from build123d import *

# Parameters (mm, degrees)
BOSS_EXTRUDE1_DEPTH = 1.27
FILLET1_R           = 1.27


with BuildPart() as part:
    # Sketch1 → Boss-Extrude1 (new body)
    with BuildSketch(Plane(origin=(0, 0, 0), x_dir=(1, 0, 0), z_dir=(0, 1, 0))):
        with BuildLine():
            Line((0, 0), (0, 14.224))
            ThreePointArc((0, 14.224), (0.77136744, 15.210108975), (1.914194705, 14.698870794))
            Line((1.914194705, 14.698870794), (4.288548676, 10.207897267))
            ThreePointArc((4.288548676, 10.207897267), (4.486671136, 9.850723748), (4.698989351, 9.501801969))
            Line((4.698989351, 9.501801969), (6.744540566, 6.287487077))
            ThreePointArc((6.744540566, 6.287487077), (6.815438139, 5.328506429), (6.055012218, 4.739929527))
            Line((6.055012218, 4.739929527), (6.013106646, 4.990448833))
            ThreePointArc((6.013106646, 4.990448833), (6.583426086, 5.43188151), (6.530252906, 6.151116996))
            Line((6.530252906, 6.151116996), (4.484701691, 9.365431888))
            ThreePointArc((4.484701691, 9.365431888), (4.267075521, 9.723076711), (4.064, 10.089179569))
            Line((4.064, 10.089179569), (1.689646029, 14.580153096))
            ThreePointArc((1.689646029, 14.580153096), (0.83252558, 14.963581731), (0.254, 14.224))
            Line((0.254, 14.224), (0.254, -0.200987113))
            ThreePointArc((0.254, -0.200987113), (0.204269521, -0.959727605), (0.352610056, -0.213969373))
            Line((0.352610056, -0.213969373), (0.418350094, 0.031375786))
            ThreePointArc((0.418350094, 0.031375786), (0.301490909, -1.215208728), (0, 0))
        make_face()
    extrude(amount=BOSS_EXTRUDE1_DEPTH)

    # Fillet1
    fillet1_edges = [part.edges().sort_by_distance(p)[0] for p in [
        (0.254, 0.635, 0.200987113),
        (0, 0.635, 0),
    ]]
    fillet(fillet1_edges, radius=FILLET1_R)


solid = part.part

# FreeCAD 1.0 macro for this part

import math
import FreeCAD as App
import Part
import Sketcher
from FreeCAD import Vector
Q = App.Units.Quantity


def edges_at(feature, points):
    """Names of the edges that pass closest to the given points."""
    edges = feature.Shape.Edges
    near = lambda p: min(range(len(edges)), key=lambda i: edges[i].distToShape(Part.Vertex(*p))[0])
    return sorted({f"Edge{near(p) + 1}" for p in points})

doc = App.newDocument("Part")
body = doc.addObject("PartDesign::Body", "Body")

sketch1 = body.newObject("Sketcher::SketchObject", "Sketch")
sketch1.AttachmentSupport = (doc.getObject("XZ_Plane"), [""])
sketch1.MapMode = "FlatFace"
sketch1.addGeometry(Part.LineSegment(Vector(0, -14.22, 0), Vector(0, 0, 0)), False)
sketch1.addGeometry(Part.ArcOfCircle(Part.Circle(Vector(0.25, 0.58, 0), Vector(0, 0, 1), 0.64), math.radians(-75), math.radians(246)), False)
sketch1.addGeometry(Part.LineSegment(Vector(0.42, -0.03, 0), Vector(0.35, 0.21, 0)), False)
sketch1.addGeometry(Part.ArcOfCircle(Part.Circle(Vector(0.25, 0.58, 0), Vector(0, 0, 1), 0.38), math.radians(-75), math.radians(270)), False)
sketch1.addGeometry(Part.LineSegment(Vector(0.25, 0.2, 0), Vector(0.25, -14.22, 0)), False)
sketch1.addGeometry(Part.ArcOfCircle(Part.Circle(Vector(1.02, -14.22, 0), Vector(0, 0, 1), 0.76), math.radians(180), math.radians(332)), False)
sketch1.addGeometry(Part.LineSegment(Vector(1.69, -14.58, 0), Vector(4.06, -10.09, 0)), False)
sketch1.addGeometry(Part.ArcOfCircle(Part.Circle(Vector(13.27, -14.96, 0), Vector(0, 0, 1), 10.41), math.radians(147.53), math.radians(152.13)), False)
sketch1.addGeometry(Part.LineSegment(Vector(4.48, -9.37, 0), Vector(6.53, -6.15, 0)), False)
sketch1.addGeometry(Part.ArcOfCircle(Part.Circle(Vector(5.89, -5.74, 0), Vector(0, 0, 1), 0.76), math.radians(-32), math.radians(81)), False)
sketch1.addGeometry(Part.LineSegment(Vector(6.01, -4.99, 0), Vector(6.06, -4.74, 0)), False)
sketch1.addGeometry(Part.ArcOfCircle(Part.Circle(Vector(5.89, -5.74, 0), Vector(0, 0, 1), 1.02), math.radians(-32), math.radians(81)), False)
sketch1.addGeometry(Part.LineSegment(Vector(6.74, -6.29, 0), Vector(4.7, -9.5, 0)), False)
sketch1.addGeometry(Part.ArcOfCircle(Part.Circle(Vector(13.27, -14.96, 0), Vector(0, 0, 1), 10.16), math.radians(147.53), math.radians(152.13)), False)
sketch1.addGeometry(Part.LineSegment(Vector(4.29, -10.21, 0), Vector(1.91, -14.7, 0)), False)
sketch1.addGeometry(Part.ArcOfCircle(Part.Circle(Vector(1.02, -14.22, 0), Vector(0, 0, 1), 1.02), math.radians(180), math.radians(332)), False)
sketch1.addConstraint(Sketcher.Constraint("Coincident", 0, 2, 1, 2))
sketch1.addConstraint(Sketcher.Constraint("Coincident", 1, 1, 2, 1))
sketch1.addConstraint(Sketcher.Constraint("Coincident", 2, 2, 3, 1))
sketch1.addConstraint(Sketcher.Constraint("Coincident", 3, 2, 4, 1))
sketch1.addConstraint(Sketcher.Constraint("Tangent", 4, 2, 5, 1))
sketch1.addConstraint(Sketcher.Constraint("Tangent", 5, 2, 6, 1))
sketch1.addConstraint(Sketcher.Constraint("Tangent", 6, 2, 7, 2))
sketch1.addConstraint(Sketcher.Constraint("Tangent", 7, 1, 8, 1))
sketch1.addConstraint(Sketcher.Constraint("Tangent", 8, 2, 9, 1))
sketch1.addConstraint(Sketcher.Constraint("Coincident", 9, 2, 10, 1))
sketch1.addConstraint(Sketcher.Constraint("Coincident", 10, 2, 11, 2))
sketch1.addConstraint(Sketcher.Constraint("Tangent", 11, 1, 12, 1))
sketch1.addConstraint(Sketcher.Constraint("Tangent", 12, 2, 13, 1))
sketch1.addConstraint(Sketcher.Constraint("Tangent", 13, 2, 14, 1))
sketch1.addConstraint(Sketcher.Constraint("Tangent", 14, 2, 15, 2))
sketch1.addConstraint(Sketcher.Constraint("Tangent", 15, 1, 0, 1))
sketch1.addConstraint(Sketcher.Constraint("Vertical", 0))
sketch1.addConstraint(Sketcher.Constraint("Vertical", 4))
sketch1.addConstraint(Sketcher.Constraint("Coincident", 0, 2, -1, 1))
sketch1.addConstraint(Sketcher.Constraint("Coincident", 3, 3, 1, 3))
sketch1.addConstraint(Sketcher.Constraint("Coincident", 11, 3, 9, 3))
sketch1.addConstraint(Sketcher.Constraint("Coincident", 13, 3, 7, 3))
sketch1.addConstraint(Sketcher.Constraint("Coincident", 15, 3, 5, 3))
sketch1.addConstraint(Sketcher.Constraint("Equal", 5, 9))
sketch1.addConstraint(Sketcher.Constraint("Equal", 11, 15))
sketch1.addConstraint(Sketcher.Constraint("Parallel", 8, 12))
sketch1.addConstraint(Sketcher.Constraint("Vertical", 1, 3, 3, 2))
sketch1.addConstraint(Sketcher.Constraint("Equal", 2, 10))
sketch1.addConstraint(Sketcher.Constraint("Radius", 13, Q("0.4 in")))
sketch1.addConstraint(Sketcher.Constraint("Radius", 5, Q("0.03 in")))
sketch1.addConstraint(Sketcher.Constraint("Radius", 7, Q("0.41 in")))
sketch1.addConstraint(Sketcher.Constraint("Angle", 2, Q("105 deg")))
sketch1.addConstraint(Sketcher.Constraint("Radius", 1, Q("0.025 in")))
sketch1.addConstraint(Sketcher.Constraint("Distance", 6, Q("0.2 in")))
sketch1.addConstraint(Sketcher.Constraint("DistanceY", 0, 1, 0, 2, Q("0.56 in")))
sketch1.addConstraint(Sketcher.Constraint("Distance", 8, Q("0.15 in")))
sketch1.addConstraint(Sketcher.Constraint("DistanceX", -1, 1, 6, 2, Q("0.16 in")))
sketch1.addConstraint(Sketcher.Constraint("DistanceX", -1, 1, 7, 1, Q("4.484702 mm")))
sketch1.addConstraint(Sketcher.Constraint("DistanceX", -1, 1, 1, 1, Q("0.41835 mm")))
sketch1.addConstraint(Sketcher.Constraint("DistanceY", 9, 2, -1, 1, Q("4.990449 mm")))
sketch1.addConstraint(Sketcher.Constraint("DistanceY", 10, 2, -1, 1, Q("4.73993 mm")))
pad1 = body.newObject("PartDesign::Pad", "Pad")
pad1.Profile = sketch1
pad1.Length = Q("0.05 in")
pad1.Reversed = True
doc.recompute()

fillet = body.newObject("PartDesign::Fillet", "Fillet")
fillet.Base = (pad1, edges_at(pad1, [(0.254, 0.635, 0.201), (0, 0.635, 0)]))
fillet.Radius = Q("0.05 in")

doc.recompute()
